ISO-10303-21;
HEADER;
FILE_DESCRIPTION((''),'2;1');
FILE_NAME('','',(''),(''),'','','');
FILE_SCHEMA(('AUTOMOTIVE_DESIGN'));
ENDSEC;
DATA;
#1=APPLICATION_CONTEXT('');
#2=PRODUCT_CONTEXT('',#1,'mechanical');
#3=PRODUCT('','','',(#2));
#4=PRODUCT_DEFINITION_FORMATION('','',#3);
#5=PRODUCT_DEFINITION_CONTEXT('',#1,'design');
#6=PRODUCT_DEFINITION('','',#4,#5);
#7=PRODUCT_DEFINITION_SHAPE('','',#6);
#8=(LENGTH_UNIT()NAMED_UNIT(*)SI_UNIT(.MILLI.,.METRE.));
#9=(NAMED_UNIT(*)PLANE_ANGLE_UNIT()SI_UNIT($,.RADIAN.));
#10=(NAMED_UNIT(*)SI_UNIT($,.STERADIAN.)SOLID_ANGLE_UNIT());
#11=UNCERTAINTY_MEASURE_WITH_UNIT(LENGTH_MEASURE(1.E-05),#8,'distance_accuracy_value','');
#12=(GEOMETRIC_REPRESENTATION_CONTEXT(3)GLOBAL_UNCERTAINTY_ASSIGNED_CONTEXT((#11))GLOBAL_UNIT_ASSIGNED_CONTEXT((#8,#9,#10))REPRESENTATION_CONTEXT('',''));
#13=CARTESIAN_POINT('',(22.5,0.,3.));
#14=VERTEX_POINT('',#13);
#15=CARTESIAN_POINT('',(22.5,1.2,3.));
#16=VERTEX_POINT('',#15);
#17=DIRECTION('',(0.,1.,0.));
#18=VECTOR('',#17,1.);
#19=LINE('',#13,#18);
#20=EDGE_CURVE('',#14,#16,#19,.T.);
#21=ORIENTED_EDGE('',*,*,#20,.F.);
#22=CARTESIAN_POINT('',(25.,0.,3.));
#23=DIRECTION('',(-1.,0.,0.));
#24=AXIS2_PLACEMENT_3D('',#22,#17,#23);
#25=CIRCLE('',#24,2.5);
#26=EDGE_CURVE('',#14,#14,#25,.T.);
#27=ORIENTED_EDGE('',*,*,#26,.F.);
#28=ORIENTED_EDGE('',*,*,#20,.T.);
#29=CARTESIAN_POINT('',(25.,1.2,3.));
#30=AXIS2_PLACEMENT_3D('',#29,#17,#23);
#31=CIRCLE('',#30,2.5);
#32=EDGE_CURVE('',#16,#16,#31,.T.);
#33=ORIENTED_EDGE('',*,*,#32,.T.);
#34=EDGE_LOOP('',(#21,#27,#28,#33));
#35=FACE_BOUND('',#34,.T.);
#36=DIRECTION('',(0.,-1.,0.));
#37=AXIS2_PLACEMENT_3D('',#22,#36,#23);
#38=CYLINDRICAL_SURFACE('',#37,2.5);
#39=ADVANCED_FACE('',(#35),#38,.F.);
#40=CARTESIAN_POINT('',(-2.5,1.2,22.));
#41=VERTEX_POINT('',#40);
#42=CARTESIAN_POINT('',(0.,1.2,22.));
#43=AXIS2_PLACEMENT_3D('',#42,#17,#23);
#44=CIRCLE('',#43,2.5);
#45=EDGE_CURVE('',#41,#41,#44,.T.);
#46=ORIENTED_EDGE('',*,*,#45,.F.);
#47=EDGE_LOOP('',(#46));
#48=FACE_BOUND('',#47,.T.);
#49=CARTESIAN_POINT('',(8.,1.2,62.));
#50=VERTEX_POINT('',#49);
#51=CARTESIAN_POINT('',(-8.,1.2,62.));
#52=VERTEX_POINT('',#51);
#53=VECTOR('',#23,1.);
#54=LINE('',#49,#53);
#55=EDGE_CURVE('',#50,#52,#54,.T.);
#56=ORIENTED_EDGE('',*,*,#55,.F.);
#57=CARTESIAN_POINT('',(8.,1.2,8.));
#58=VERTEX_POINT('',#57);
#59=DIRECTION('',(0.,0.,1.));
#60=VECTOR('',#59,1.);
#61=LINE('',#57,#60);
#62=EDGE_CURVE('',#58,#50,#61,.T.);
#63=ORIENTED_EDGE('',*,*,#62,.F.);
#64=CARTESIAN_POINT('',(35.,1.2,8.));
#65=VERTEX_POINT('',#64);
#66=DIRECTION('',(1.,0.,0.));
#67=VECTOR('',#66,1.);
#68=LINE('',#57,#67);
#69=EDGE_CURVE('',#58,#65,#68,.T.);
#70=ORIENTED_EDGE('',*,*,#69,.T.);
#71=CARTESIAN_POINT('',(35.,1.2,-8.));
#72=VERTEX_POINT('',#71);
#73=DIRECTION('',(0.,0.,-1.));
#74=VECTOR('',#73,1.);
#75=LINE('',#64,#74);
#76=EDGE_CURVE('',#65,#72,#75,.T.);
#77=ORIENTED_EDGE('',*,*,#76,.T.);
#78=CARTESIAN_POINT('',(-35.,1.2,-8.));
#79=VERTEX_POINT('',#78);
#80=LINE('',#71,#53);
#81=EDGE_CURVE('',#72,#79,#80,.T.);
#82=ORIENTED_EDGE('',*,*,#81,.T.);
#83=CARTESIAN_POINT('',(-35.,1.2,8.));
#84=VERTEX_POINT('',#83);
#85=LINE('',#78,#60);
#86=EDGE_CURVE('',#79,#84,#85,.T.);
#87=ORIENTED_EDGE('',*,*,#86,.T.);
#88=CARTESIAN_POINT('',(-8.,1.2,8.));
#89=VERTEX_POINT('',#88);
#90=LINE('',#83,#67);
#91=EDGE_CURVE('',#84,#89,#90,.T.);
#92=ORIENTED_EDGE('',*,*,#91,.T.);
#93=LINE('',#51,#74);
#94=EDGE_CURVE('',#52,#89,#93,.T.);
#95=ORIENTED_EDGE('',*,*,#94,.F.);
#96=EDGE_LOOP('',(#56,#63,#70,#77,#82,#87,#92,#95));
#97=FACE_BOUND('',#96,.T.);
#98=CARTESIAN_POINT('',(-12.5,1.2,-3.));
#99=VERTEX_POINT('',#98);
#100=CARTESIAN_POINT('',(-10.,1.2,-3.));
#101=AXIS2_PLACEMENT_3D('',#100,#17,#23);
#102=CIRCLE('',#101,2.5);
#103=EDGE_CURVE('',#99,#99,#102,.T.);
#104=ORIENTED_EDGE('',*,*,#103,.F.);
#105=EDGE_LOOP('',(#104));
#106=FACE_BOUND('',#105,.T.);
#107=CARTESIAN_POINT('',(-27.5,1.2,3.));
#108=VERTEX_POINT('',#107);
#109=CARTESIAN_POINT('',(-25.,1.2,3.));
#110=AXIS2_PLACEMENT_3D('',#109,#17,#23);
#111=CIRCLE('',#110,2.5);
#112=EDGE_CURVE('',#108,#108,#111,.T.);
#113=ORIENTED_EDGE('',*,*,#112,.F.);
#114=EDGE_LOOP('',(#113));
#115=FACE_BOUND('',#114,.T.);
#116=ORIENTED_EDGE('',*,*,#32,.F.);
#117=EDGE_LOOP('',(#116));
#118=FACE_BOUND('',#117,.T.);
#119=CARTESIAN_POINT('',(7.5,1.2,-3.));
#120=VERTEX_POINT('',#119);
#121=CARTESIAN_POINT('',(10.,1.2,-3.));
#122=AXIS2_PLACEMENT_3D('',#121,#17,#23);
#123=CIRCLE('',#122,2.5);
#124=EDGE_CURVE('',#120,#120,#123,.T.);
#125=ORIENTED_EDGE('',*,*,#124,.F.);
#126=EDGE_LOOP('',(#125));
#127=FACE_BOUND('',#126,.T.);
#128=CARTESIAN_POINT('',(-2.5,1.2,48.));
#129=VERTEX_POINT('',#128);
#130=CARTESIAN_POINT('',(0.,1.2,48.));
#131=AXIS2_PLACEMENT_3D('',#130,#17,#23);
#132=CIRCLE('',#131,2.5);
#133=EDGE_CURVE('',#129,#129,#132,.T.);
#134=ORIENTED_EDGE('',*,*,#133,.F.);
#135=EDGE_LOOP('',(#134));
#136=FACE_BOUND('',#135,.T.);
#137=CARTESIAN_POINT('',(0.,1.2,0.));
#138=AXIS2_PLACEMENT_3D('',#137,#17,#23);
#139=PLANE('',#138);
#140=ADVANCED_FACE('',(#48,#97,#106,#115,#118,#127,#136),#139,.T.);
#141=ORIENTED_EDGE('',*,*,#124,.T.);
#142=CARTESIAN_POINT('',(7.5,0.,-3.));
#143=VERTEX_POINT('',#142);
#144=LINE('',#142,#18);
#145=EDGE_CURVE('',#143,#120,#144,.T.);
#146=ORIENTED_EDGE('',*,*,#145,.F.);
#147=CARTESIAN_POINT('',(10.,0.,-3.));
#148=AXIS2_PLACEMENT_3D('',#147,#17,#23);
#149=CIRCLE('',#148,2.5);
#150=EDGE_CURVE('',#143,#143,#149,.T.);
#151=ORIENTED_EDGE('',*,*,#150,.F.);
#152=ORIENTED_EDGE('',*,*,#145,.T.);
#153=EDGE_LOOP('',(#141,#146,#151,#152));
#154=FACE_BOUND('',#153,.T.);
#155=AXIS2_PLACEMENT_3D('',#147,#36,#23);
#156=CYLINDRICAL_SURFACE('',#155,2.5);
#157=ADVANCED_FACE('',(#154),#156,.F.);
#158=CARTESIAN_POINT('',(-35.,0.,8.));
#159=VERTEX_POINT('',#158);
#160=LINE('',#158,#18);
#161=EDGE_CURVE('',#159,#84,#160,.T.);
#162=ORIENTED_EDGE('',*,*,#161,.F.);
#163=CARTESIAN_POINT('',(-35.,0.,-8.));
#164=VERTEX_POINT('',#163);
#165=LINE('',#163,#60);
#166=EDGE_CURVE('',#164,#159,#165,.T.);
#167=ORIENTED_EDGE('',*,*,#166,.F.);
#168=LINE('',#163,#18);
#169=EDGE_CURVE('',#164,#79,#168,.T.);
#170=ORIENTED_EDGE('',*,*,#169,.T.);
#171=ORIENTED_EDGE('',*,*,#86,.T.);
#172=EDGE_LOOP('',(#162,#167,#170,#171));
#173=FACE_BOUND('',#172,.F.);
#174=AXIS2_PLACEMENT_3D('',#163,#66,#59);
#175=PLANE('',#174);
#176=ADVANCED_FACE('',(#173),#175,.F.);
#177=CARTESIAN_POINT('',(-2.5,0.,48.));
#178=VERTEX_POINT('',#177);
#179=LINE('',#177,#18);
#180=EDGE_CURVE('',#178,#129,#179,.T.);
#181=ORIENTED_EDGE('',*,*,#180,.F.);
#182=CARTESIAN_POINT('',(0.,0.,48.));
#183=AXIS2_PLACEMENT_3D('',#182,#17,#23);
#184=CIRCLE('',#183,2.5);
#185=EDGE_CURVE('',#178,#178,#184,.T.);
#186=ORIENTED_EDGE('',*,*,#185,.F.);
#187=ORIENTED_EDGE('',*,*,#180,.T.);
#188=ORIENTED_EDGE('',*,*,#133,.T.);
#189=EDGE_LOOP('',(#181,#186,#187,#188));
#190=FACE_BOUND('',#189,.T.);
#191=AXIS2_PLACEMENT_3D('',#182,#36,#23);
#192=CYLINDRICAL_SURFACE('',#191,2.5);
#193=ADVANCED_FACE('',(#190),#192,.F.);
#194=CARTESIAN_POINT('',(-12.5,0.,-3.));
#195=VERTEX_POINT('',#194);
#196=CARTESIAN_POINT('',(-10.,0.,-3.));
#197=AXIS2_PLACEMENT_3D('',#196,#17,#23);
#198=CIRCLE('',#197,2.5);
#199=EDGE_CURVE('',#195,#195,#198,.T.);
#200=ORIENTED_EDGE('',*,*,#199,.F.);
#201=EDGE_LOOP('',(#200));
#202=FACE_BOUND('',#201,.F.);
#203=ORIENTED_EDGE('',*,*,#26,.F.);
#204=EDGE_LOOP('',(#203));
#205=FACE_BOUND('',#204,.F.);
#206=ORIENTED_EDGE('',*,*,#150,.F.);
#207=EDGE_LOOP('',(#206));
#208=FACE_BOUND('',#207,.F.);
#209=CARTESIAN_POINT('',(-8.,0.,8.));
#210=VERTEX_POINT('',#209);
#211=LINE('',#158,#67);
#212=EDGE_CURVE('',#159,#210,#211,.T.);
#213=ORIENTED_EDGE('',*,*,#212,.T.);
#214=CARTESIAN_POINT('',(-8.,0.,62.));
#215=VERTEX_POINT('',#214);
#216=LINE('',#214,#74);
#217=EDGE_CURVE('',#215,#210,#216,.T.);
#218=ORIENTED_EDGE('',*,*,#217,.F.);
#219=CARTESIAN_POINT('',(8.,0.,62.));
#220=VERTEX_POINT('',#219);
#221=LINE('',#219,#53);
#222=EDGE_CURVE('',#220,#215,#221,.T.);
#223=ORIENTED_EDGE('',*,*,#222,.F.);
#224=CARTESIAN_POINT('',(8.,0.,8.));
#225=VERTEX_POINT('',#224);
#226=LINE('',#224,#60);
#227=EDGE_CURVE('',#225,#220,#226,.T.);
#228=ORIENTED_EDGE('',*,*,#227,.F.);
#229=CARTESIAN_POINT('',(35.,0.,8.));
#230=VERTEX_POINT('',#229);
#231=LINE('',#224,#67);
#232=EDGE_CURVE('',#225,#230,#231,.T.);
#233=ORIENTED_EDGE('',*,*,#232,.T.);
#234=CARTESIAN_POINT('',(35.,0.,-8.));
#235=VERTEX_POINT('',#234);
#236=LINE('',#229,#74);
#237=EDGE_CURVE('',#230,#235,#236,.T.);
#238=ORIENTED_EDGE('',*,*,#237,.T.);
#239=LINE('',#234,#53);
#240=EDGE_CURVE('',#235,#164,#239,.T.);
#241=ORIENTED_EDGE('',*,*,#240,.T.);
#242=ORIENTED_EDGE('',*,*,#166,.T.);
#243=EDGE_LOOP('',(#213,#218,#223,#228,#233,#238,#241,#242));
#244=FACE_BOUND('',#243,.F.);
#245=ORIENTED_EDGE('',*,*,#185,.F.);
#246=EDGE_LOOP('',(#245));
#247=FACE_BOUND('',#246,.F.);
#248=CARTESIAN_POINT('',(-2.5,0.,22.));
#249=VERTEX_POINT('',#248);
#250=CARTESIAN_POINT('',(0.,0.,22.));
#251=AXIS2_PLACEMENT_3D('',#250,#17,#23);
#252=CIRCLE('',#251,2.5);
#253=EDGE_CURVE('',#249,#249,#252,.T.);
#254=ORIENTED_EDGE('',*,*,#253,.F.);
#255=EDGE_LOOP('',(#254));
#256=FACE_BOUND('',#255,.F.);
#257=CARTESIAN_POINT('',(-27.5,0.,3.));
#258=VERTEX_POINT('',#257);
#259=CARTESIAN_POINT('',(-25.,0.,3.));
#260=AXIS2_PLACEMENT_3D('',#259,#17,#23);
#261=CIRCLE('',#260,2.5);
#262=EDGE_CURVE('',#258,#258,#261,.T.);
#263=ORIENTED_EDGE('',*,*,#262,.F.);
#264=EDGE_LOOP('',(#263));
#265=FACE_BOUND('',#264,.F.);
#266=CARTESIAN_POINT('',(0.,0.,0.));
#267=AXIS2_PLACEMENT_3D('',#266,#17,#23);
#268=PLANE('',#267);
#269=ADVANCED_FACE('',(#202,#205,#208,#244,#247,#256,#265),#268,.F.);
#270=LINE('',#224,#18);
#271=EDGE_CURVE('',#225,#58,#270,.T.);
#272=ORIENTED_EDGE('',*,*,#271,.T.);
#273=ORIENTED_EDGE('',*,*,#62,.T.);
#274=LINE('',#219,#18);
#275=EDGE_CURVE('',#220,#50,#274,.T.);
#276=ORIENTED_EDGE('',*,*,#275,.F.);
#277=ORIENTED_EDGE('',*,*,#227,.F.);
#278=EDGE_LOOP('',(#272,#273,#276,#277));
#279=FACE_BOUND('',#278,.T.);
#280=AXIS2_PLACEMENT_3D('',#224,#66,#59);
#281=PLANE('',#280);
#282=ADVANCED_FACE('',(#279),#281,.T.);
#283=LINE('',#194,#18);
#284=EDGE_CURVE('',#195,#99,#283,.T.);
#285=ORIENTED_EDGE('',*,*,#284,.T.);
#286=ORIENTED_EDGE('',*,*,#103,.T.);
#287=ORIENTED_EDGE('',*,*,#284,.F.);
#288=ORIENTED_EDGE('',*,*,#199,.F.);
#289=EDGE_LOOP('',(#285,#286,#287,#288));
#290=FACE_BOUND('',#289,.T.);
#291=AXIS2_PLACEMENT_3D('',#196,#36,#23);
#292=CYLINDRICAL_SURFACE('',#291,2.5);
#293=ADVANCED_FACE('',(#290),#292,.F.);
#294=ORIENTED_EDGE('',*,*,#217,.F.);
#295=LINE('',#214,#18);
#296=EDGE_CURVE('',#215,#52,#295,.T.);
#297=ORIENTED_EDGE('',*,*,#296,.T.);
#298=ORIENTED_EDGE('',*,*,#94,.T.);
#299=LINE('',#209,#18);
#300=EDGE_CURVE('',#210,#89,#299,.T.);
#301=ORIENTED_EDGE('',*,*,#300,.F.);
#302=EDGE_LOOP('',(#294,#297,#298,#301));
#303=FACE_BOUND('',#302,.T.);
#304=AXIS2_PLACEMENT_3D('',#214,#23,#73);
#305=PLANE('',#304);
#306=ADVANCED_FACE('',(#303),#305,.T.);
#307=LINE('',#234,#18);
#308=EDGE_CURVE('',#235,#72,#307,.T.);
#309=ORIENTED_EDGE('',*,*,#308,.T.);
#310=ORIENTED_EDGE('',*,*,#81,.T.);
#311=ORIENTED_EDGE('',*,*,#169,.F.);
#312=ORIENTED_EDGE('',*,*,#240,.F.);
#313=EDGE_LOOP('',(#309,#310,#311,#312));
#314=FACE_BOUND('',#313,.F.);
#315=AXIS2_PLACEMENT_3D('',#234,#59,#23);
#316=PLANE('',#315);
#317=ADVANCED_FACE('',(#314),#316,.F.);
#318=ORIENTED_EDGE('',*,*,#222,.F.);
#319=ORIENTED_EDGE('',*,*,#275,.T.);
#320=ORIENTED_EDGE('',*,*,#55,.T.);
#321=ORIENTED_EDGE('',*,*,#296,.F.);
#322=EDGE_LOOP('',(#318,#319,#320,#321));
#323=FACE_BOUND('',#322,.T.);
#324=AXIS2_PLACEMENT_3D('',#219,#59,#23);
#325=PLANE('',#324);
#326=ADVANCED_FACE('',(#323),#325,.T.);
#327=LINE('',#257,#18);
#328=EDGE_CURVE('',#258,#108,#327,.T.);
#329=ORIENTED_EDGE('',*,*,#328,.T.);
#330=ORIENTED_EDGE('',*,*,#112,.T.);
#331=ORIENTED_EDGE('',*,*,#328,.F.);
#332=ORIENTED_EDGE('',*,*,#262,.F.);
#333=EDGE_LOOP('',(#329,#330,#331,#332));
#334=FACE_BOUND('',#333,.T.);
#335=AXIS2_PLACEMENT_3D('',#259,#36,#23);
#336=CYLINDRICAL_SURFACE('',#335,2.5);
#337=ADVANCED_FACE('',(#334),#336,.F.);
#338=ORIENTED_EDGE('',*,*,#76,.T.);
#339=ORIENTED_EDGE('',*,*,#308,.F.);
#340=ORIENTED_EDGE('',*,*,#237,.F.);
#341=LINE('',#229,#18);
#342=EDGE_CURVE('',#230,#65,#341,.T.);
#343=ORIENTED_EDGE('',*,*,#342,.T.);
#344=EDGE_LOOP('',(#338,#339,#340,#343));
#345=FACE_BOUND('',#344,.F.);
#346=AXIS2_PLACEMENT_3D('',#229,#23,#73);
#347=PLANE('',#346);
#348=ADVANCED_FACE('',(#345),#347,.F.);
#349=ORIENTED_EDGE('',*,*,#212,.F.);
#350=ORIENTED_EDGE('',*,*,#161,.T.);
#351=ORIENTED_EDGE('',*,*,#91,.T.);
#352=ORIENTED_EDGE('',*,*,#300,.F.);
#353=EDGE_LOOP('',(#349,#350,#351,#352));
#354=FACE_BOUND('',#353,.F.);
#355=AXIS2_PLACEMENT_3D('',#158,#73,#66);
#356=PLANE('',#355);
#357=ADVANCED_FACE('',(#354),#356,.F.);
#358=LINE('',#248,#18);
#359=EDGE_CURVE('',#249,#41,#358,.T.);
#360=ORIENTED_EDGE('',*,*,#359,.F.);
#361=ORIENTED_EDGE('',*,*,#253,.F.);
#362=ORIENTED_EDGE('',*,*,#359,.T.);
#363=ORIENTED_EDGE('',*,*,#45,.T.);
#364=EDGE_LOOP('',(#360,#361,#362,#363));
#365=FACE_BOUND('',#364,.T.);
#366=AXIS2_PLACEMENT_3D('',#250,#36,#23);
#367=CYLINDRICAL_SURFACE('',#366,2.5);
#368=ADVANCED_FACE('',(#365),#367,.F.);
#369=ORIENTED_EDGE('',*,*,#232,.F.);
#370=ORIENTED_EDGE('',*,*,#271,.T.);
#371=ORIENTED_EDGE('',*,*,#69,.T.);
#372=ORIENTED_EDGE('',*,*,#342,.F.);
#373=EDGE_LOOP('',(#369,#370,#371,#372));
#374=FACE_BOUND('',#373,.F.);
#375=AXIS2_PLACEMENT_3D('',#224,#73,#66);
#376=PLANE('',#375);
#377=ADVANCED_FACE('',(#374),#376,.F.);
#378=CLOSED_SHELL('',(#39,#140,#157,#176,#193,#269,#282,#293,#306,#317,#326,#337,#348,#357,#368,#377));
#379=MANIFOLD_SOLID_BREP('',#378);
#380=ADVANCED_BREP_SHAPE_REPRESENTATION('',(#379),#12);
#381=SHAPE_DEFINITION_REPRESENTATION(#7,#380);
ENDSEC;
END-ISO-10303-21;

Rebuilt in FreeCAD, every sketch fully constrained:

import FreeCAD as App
import Part
import Sketcher
from FreeCAD import Vector

doc = App.newDocument("Part")
params = doc.addObject("Spreadsheet::Sheet", "Params")
for row, (alias, value) in enumerate([
    ("sketch1_diameter", "5 mm"),
    ("sketch1_width", "70 mm"),
    ("sketch1_width2", "16 mm"),
    ("pad1_length", "1.2 mm"),
], start=1):
    params.set(f"A{row}", alias)
    params.set(f"B{row}", "=" + value)
    params.setAlias(f"B{row}", alias)

body = doc.addObject("PartDesign::Body", "Body")

sketch1 = body.newObject("Sketcher::SketchObject", "Sketch")
sketch1.AttachmentSupport = (doc.getObject("XZ_Plane"), [""])
sketch1.MapMode = "FlatFace"
sketch1.addGeometry(Part.LineSegment(Vector(8, 8, 0), Vector(35, 8, 0)), False)
sketch1.addGeometry(Part.LineSegment(Vector(35, 8, 0), Vector(35, -8, 0)), False)
sketch1.addGeometry(Part.LineSegment(Vector(35, -8, 0), Vector(-35, -8, 0)), False)
sketch1.addGeometry(Part.LineSegment(Vector(-35, -8, 0), Vector(-35, 8, 0)), False)
sketch1.addGeometry(Part.LineSegment(Vector(-35, 8, 0), Vector(-8, 8, 0)), False)
sketch1.addGeometry(Part.LineSegment(Vector(-8, 8, 0), Vector(-8, 62, 0)), False)
sketch1.addGeometry(Part.LineSegment(Vector(-8, 62, 0), Vector(8, 62, 0)), False)
sketch1.addGeometry(Part.LineSegment(Vector(8, 62, 0), Vector(8, 8, 0)), False)
sketch1.addGeometry(Part.Circle(Vector(25, 3, 0), Vector(0, 0, 1), 2.5), False)
sketch1.addGeometry(Part.Circle(Vector(10, -3, 0), Vector(0, 0, 1), 2.5), False)
sketch1.addGeometry(Part.Circle(Vector(-10, -3, 0), Vector(0, 0, 1), 2.5), False)
sketch1.addGeometry(Part.Circle(Vector(-25, 3, 0), Vector(0, 0, 1), 2.5), False)
sketch1.addGeometry(Part.Circle(Vector(0, 22, 0), Vector(0, 0, 1), 2.5), False)
sketch1.addGeometry(Part.Circle(Vector(0, 48, 0), Vector(0, 0, 1), 2.5), False)
sketch1.addConstraint(Sketcher.Constraint("Coincident", 0, 2, 1, 1))
sketch1.addConstraint(Sketcher.Constraint("Coincident", 1, 2, 2, 1))
sketch1.addConstraint(Sketcher.Constraint("Coincident", 2, 2, 3, 1))
sketch1.addConstraint(Sketcher.Constraint("Coincident", 3, 2, 4, 1))
sketch1.addConstraint(Sketcher.Constraint("Coincident", 4, 2, 5, 1))
sketch1.addConstraint(Sketcher.Constraint("Coincident", 5, 2, 6, 1))
sketch1.addConstraint(Sketcher.Constraint("Coincident", 6, 2, 7, 1))
sketch1.addConstraint(Sketcher.Constraint("Coincident", 7, 2, 0, 1))
sketch1.addConstraint(Sketcher.Constraint("Horizontal", 0))
sketch1.addConstraint(Sketcher.Constraint("Vertical", 1))
sketch1.addConstraint(Sketcher.Constraint("Horizontal", 2))
sketch1.addConstraint(Sketcher.Constraint("Vertical", 3))
sketch1.addConstraint(Sketcher.Constraint("Horizontal", 4))
sketch1.addConstraint(Sketcher.Constraint("Vertical", 5))
sketch1.addConstraint(Sketcher.Constraint("Horizontal", 6))
sketch1.addConstraint(Sketcher.Constraint("Vertical", 7))
sketch1.addConstraint(Sketcher.Constraint("Equal", 8, 9))
sketch1.addConstraint(Sketcher.Constraint("Equal", 9, 10))
sketch1.addConstraint(Sketcher.Constraint("Equal", 10, 11))
sketch1.addConstraint(Sketcher.Constraint("Equal", 11, 12))
sketch1.addConstraint(Sketcher.Constraint("Equal", 12, 13))
sketch1.addConstraint(Sketcher.Constraint("Symmetric", 0, 2, 2, 2, -1, 1))
sketch1.addConstraint(Sketcher.Constraint("Symmetric", 9, 3, 10, 3, -2))
sketch1.addConstraint(Sketcher.Constraint("Symmetric", 8, 3, 11, 3, -2))
sketch1.addConstraint(Sketcher.Constraint("Symmetric", 4, 2, 7, 2, -2))
sketch1.addConstraint(Sketcher.Constraint("PointOnObject", 12, 3, -2))
sketch1.addConstraint(Sketcher.Constraint("PointOnObject", 13, 3, -2))
sketch1.addConstraint(Sketcher.Constraint("Equal", 6, 1))
sketch1.addConstraint(Sketcher.Constraint("Diameter", 8, 5.0))
sketch1.addConstraint(Sketcher.Constraint("DistanceX", 2, 2, 2, 1, 70.0))
sketch1.addConstraint(Sketcher.Constraint("DistanceX", 6, 1, 6, 2, 16.0))
sketch1.addConstraint(Sketcher.Constraint("DistanceX", -1, 1, 9, 3, 10.0))
sketch1.addConstraint(Sketcher.Constraint("DistanceX", 8, 3, 0, 2, 10.0))
sketch1.addConstraint(Sketcher.Constraint("DistanceY", 8, 3, 0, 2, 5.0))
sketch1.addConstraint(Sketcher.Constraint("DistanceY", 0, 2, 12, 3, 14.0))
sketch1.addConstraint(Sketcher.Constraint("DistanceY", 0, 2, 13, 3, 40.0))
sketch1.addConstraint(Sketcher.Constraint("DistanceY", 1, 2, 9, 3, 5.0))
sketch1.addConstraint(Sketcher.Constraint("DistanceY", 13, 3, 5, 2, 14.0))
sketch1.setExpression("Constraints[28]", "Params.sketch1_diameter")
sketch1.setExpression("Constraints[29]", "Params.sketch1_width")
sketch1.setExpression("Constraints[30]", "Params.sketch1_width2")
pad1 = body.newObject("PartDesign::Pad", "Pad")
pad1.Profile = sketch1
pad1.setExpression("Length", "Params.pad1_length")
pad1.Reversed = True

doc.recompute()
